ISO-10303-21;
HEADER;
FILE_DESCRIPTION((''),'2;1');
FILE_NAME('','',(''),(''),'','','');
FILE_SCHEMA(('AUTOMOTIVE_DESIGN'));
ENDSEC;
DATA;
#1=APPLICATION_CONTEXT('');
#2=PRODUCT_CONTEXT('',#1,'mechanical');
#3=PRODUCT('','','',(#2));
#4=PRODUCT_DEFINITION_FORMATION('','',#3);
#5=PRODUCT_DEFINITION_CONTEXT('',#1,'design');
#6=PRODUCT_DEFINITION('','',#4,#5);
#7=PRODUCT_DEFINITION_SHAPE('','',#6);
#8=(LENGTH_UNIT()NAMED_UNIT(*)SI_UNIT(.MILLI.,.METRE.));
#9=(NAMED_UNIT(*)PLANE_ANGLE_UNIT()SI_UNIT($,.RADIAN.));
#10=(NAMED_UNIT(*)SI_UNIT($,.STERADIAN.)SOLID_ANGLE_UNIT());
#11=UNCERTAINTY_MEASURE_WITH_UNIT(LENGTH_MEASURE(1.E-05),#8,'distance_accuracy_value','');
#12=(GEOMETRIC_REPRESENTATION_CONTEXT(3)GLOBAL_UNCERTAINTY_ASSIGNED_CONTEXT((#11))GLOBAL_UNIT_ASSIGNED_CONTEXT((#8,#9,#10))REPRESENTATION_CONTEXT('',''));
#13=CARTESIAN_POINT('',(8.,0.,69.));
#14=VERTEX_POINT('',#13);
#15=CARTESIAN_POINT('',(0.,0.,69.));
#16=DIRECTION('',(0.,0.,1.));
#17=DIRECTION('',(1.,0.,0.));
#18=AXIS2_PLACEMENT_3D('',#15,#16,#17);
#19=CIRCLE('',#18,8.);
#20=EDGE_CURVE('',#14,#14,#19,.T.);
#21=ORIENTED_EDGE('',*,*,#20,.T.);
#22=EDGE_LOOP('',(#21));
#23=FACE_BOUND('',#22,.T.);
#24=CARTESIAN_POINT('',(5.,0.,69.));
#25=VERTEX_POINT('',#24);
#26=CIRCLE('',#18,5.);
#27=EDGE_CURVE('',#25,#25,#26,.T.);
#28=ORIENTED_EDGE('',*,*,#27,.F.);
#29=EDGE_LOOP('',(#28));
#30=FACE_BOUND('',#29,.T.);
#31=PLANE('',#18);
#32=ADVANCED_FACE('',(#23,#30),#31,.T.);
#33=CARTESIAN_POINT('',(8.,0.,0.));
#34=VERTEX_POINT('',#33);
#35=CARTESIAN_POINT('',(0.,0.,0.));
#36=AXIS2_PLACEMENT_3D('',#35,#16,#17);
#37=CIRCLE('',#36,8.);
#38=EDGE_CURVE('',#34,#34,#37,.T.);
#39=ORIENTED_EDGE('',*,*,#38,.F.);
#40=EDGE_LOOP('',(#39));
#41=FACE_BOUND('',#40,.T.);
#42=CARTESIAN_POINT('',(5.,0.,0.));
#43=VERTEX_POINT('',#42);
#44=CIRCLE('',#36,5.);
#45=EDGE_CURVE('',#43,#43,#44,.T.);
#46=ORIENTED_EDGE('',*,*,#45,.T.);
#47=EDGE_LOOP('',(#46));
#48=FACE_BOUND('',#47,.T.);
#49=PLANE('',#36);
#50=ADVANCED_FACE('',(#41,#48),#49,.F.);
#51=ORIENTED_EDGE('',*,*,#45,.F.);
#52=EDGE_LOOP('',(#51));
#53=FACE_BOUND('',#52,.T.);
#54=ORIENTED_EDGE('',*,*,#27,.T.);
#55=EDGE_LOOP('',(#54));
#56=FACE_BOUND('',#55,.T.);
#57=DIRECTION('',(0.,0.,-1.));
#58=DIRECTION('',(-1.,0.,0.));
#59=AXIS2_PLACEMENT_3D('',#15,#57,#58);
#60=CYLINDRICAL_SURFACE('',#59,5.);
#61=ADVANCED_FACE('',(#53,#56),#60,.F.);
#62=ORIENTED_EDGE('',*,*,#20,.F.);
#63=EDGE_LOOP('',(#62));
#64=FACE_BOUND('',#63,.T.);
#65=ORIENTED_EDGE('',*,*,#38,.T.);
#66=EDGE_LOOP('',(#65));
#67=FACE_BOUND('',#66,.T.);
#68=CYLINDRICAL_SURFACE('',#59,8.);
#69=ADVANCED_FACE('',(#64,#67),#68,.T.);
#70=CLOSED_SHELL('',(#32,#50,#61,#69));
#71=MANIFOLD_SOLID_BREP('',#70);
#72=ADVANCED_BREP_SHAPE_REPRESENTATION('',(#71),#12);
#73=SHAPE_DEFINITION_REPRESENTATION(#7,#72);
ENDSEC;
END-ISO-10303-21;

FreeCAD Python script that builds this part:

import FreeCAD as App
import Part
import Sketcher

doc = App.newDocument("Part")
body = doc.addObject("PartDesign::Body", "Body")

# Sketch on XY plane
sketch1 = body.newObject("Sketcher::SketchObject", "Sketch")
sketch1.AttachmentSupport = (doc.getObject("XY_Plane"), [""])
sketch1.MapMode = "FlatFace"
sketch1.addGeometry([
    Part.Circle(App.Vector(0, 0, 0), App.Vector(0, 0, 1), 8),
    Part.Circle(App.Vector(0, 0, 0), App.Vector(0, 0, 1), 5),
], False)
sketch1.addConstraint([
    Sketcher.Constraint("Coincident", 0, 3, -1, 1),
    Sketcher.Constraint("Coincident", 1, 3, -1, 1),
    Sketcher.Constraint("Diameter", 0, 16.0),
    Sketcher.Constraint("Diameter", 1, 10.0),
])
pad1 = body.newObject("PartDesign::Pad", "Pad")
pad1.Profile = sketch1
pad1.Length = 69

doc.recompute()
